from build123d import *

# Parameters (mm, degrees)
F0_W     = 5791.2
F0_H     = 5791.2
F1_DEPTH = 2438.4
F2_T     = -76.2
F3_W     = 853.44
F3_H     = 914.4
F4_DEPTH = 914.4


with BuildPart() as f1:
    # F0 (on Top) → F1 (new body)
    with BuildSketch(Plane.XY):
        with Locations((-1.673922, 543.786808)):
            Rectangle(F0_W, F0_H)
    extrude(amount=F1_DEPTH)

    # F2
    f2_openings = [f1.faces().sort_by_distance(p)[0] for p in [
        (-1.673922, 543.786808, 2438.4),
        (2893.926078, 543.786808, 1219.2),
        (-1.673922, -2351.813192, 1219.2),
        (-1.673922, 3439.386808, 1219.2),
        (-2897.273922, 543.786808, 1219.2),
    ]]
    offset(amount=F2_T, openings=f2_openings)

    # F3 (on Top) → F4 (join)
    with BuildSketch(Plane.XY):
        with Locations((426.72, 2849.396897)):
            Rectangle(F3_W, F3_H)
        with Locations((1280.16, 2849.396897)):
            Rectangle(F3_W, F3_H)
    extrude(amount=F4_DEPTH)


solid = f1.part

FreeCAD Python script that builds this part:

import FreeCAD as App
import Part
import Sketcher
Q = App.Units.Quantity


def faces_at(feature, points):
    """Names of the faces that lie closest to the given points."""
    faces = feature.Shape.Faces
    near = lambda p: min(range(len(faces)), key=lambda i: faces[i].distToShape(Part.Vertex(*p))[0])
    return sorted({f"Face{near(p) + 1}" for p in points})


def add_polygon(sketch, points):
    """Adds a closed chain of lines whose ends are joined by coincident constraints."""
    first, n = sketch.GeometryCount, len(points)
    for a, b in zip(points, points[1:] + points[:1]):
        sketch.addGeometry(Part.LineSegment(App.Vector(*a, 0), App.Vector(*b, 0)), False)
    for i in range(n):
        sketch.addConstraint(Sketcher.Constraint("Coincident", first + i, 2, first + (i + 1) % n, 1))

doc = App.newDocument("Part")
params = doc.addObject("Spreadsheet::Sheet", "Params")
for row, (alias, value) in enumerate([
    ("sketch1_width", "228 in"),
    ("pad1_length", "96 in"),
    ("thickness_wall", "3 in"),
    ("sketch2_height", "36 in"),
    ("sketch2_width", "67.2 in"),
    ("pad2_length", "36 in"),
], start=1):
    params.set(f"A{row}", alias)
    params.set(f"B{row}", "=" + value)
    params.setAlias(f"B{row}", alias)

body = doc.addObject("PartDesign::Body", "Body")

# Sketch on XY plane
sketch1 = body.newObject("Sketcher::SketchObject", "Sketch")
sketch1.AttachmentSupport = (doc.getObject("XY_Plane"), [""])
sketch1.MapMode = "FlatFace"
add_polygon(sketch1, [(-2897.273922, 3439.386808), (-2897.273922, -2351.813192), (2893.926078, -2351.813192), (2893.926078, 3439.386808)])  # lines 0-3
sketch1.addConstraint([
    Sketcher.Constraint("Vertical", 0),
    Sketcher.Constraint("Horizontal", 1),
    Sketcher.Constraint("Vertical", 2),
    Sketcher.Constraint("Horizontal", 3),
    Sketcher.Constraint("Equal", 3, 0),
    Sketcher.Constraint("DistanceX", 1, 1, 1, 2, Q("228 in")),
    Sketcher.Constraint("DistanceX", 0, 2, -1, 1, Q("2897.273922 mm")),
    Sketcher.Constraint("DistanceY", -1, 1, 2, 2, Q("3439.386808 mm")),
])
sketch1.setExpression("Constraints[9]", "Params.sketch1_width")
pad1 = body.newObject("PartDesign::Pad", "Pad")
pad1.Profile = sketch1
pad1.setExpression("Length", "Params.pad1_length")
doc.recompute()

thickness = body.newObject("PartDesign::Thickness", "Thickness")
thickness.Base = (pad1, faces_at(pad1, [
    (-1.674, 543.787, 2438.4),
    (2893.926, 543.787, 1219.2),
    (-1.674, -2351.813, 1219.2),
    (-1.674, 3439.387, 1219.2),
    (-2897.274, 543.787, 1219.2),
]))
thickness.setExpression("Value", "Params.thickness_wall")
thickness.Reversed = True
thickness.Join = "Arc"

# Sketch on XY plane
sketch2 = body.newObject("Sketcher::SketchObject", "Sketch001")
sketch2.AttachmentSupport = (doc.getObject("XY_Plane"), [""])
sketch2.MapMode = "FlatFace"
add_polygon(sketch2, [(0, 3306.596897), (0, 2392.196897), (1706.88, 2392.196897), (1706.88, 3306.596897)])  # lines 0-3
sketch2.addConstraint([
    Sketcher.Constraint("Vertical", 0),
    Sketcher.Constraint("Horizontal", 1),
    Sketcher.Constraint("Vertical", 2),
    Sketcher.Constraint("Horizontal", 3),
    Sketcher.Constraint("PointOnObject", 0, 2, -2),
    Sketcher.Constraint("DistanceY", 0, 2, 0, 1, Q("36 in")),
    Sketcher.Constraint("DistanceX", 1, 1, 1, 2, Q("67.2 in")),
    Sketcher.Constraint("DistanceY", -1, 1, 0, 2, Q("2392.196897 mm")),
])
sketch2.setExpression("Constraints[9]", "Params.sketch2_height")
sketch2.setExpression("Constraints[10]", "Params.sketch2_width")
pad2 = body.newObject("PartDesign::Pad", "Pad001")
pad2.Profile = sketch2
pad2.setExpression("Length", "Params.pad2_length")

doc.recompute()
